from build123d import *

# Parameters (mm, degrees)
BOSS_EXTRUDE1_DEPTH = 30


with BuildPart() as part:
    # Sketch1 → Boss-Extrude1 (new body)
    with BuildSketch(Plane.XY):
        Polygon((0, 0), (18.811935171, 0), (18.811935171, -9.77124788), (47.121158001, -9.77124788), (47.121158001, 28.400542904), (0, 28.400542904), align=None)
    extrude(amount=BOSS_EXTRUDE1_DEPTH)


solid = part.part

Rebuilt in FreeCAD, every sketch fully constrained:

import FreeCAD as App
import Part
import Sketcher

V = App.Vector

doc = App.newDocument("Part")
body = doc.addObject("PartDesign::Body", "Body")

sketch1 = body.newObject("Sketcher::SketchObject", "Sketch")
sketch1.AttachmentSupport = (doc.getObject("XY_Plane"), [""])
sketch1.MapMode = "FlatFace"
sketch1.addGeometry([
    Part.LineSegment(V(0, 0, 0), V(19, 0, 0)),
    Part.LineSegment(V(19, 0, 0), V(19, -10, 0)),
    Part.LineSegment(V(19, -10, 0), V(47, -10, 0)),
    Part.LineSegment(V(47, -10, 0), V(47, 28, 0)),
    Part.LineSegment(V(47, 28, 0), V(0, 28, 0)),
    Part.LineSegment(V(0, 28, 0), V(0, 0, 0)),
], False)
sketch1.addConstraint([
    Sketcher.Constraint("Coincident", 0, 2, 1, 1),
    Sketcher.Constraint("Coincident", 1, 2, 2, 1),
    Sketcher.Constraint("Coincident", 2, 2, 3, 1),
    Sketcher.Constraint("Coincident", 3, 2, 4, 1),
    Sketcher.Constraint("Coincident", 4, 2, 5, 1),
    Sketcher.Constraint("Coincident", 5, 2, 0, 1),
    Sketcher.Constraint("Horizontal", 0),
    Sketcher.Constraint("Vertical", 1),
    Sketcher.Constraint("Horizontal", 2),
    Sketcher.Constraint("Vertical", 3),
    Sketcher.Constraint("Horizontal", 4),
    Sketcher.Constraint("Vertical", 5),
    Sketcher.Constraint("Coincident", 5, 2, -1, 1),
    Sketcher.Constraint("DistanceX", 4, 2, 4, 1, 47.121158),
    Sketcher.Constraint("DistanceY", 3, 1, 3, 2, 38.171791),
    Sketcher.Constraint("DistanceX", 0, 1, 0, 2, 18.811935),
    Sketcher.Constraint("DistanceY", 1, 2, 1, 1, 9.771248),
])
pad1 = body.newObject("PartDesign::Pad", "Pad")
pad1.Profile = sketch1
pad1.Length = 30

doc.recompute()
